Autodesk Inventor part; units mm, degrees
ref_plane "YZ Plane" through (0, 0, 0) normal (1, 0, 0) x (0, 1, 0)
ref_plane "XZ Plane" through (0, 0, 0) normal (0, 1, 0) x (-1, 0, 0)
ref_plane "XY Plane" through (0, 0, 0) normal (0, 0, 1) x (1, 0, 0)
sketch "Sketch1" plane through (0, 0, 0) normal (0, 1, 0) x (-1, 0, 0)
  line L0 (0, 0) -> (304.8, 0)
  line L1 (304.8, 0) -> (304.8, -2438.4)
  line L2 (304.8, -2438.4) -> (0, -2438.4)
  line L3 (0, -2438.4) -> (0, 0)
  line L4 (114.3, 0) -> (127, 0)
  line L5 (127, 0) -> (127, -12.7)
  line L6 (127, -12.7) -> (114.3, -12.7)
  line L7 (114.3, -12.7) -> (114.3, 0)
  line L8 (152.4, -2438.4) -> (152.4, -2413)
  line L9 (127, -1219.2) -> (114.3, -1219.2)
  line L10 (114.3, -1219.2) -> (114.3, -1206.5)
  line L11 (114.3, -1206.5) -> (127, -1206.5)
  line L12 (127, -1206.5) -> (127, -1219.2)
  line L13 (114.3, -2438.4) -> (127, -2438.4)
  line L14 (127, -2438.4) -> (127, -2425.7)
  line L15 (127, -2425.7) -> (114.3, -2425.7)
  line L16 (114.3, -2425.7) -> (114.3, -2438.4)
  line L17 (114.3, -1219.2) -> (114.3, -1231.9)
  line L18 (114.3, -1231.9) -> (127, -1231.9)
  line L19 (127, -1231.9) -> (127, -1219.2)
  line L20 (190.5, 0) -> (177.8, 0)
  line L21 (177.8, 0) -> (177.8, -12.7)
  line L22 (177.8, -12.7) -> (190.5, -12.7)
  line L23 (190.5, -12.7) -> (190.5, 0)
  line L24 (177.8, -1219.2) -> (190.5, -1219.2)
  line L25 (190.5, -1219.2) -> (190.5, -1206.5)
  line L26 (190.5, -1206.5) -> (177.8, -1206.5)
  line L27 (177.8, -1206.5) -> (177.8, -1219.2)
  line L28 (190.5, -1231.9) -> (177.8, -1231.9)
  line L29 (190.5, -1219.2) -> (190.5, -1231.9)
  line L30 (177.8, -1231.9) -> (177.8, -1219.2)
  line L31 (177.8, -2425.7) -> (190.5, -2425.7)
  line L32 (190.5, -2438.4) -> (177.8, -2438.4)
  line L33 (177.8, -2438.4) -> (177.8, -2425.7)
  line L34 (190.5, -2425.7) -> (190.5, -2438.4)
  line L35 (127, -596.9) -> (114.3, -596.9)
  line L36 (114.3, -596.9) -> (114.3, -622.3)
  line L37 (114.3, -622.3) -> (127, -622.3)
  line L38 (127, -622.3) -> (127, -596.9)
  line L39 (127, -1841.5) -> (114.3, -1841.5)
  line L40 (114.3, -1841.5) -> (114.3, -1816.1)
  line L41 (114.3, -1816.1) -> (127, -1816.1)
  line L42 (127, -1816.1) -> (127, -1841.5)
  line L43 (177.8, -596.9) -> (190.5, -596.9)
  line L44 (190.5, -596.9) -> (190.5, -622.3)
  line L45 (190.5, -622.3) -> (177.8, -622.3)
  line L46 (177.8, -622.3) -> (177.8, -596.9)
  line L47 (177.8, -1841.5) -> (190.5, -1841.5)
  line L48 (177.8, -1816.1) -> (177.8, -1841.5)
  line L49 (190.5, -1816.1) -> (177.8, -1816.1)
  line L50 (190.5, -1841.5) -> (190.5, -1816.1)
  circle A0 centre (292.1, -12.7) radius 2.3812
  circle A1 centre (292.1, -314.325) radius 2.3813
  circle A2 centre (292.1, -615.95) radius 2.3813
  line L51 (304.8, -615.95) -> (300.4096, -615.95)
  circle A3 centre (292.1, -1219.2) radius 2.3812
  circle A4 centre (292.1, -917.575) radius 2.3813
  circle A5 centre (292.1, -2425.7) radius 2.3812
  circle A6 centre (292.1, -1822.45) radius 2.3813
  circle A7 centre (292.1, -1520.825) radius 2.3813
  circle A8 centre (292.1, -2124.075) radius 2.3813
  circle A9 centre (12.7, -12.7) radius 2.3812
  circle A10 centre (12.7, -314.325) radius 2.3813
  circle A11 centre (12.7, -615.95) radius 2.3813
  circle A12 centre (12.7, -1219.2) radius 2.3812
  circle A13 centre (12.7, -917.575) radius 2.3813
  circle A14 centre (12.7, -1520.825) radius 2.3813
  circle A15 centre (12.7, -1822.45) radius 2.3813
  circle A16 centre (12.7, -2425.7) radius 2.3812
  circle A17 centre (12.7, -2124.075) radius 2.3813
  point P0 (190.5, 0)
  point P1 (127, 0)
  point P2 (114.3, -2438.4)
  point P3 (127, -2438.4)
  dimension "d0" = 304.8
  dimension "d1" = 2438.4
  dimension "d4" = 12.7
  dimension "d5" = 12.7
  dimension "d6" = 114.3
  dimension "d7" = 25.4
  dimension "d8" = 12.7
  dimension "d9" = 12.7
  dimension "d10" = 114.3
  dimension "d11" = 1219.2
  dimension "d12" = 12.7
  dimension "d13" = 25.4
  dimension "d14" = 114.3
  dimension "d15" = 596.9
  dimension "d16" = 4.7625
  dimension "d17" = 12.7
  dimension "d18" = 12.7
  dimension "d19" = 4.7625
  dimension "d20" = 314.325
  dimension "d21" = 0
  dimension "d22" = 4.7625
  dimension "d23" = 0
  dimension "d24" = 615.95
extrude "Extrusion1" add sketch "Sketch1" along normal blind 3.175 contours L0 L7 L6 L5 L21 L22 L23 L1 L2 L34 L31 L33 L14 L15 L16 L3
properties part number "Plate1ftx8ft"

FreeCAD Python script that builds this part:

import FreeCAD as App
import Part
import Sketcher
Q = App.Units.Quantity


def add_polygon(sketch, points):
    """Adds a closed chain of lines whose ends are joined by coincident constraints."""
    first, n = sketch.GeometryCount, len(points)
    for a, b in zip(points, points[1:] + points[:1]):
        sketch.addGeometry(Part.LineSegment(App.Vector(*a, 0), App.Vector(*b, 0)), False)
    for i in range(n):
        sketch.addConstraint(Sketcher.Constraint("Coincident", first + i, 2, first + (i + 1) % n, 1))

doc = App.newDocument("Part")
body = doc.addObject("PartDesign::Body", "Body")

# Sketch on XZ plane
sketch1 = body.newObject("Sketcher::SketchObject", "Sketch")
sketch1.AttachmentSupport = (doc.getObject("XZ_Plane"), [""])
sketch1.MapMode = "FlatFace"
add_polygon(sketch1, [(-114.3, 0), (0, 0), (0, -2438.4), (-114.3, -2438.4), (-114.3, -2425.7), (-127, -2425.7), (-127, -2438.4), (-177.8, -2438.4), (-177.8, -2425.7), (-190.5, -2425.7), (-190.5, -2438.4), (-304.8, -2438.4), (-304.8, 0), (-190.5, 0), (-190.5, -12.7), (-177.8, -12.7), (-177.8, 0), (-127, 0), (-127, -12.7), (-114.3, -12.7)])  # lines 0-19
sketch1.addGeometry(Part.Circle(App.Vector(-12.7, -2425.7, 0), App.Vector(0, 0, 1), 2.4), False)  # 20
sketch1.addGeometry(Part.Circle(App.Vector(-12.7, -2124.1, 0), App.Vector(0, 0, 1), 2.4), False)  # 21
sketch1.addGeometry(Part.Circle(App.Vector(-12.7, -1822.5, 0), App.Vector(0, 0, 1), 2.4), False)  # 22
sketch1.addGeometry(Part.Circle(App.Vector(-12.7, -1520.8, 0), App.Vector(0, 0, 1), 2.4), False)  # 23
add_polygon(sketch1, [(-127, -1816.1), (-127, -1841.5), (-114.3, -1841.5), (-114.3, -1816.1)])  # lines 24-27
sketch1.addGeometry(Part.Circle(App.Vector(-292.1, -2425.7, 0), App.Vector(0, 0, 1), 2.4), False)  # 28
sketch1.addGeometry(Part.Circle(App.Vector(-292.1, -2124.1, 0), App.Vector(0, 0, 1), 2.4), False)  # 29
add_polygon(sketch1, [(-190.5, -1841.5), (-177.8, -1841.5), (-177.8, -1816.1), (-190.5, -1816.1)])  # lines 30-33
sketch1.addGeometry(Part.Circle(App.Vector(-292.1, -1822.5, 0), App.Vector(0, 0, 1), 2.4), False)  # 34
sketch1.addGeometry(Part.Circle(App.Vector(-292.1, -1520.8, 0), App.Vector(0, 0, 1), 2.4), False)  # 35
sketch1.addGeometry(Part.Circle(App.Vector(-12.7, -1219.2, 0), App.Vector(0, 0, 1), 2.4), False)  # 36
sketch1.addGeometry(Part.Circle(App.Vector(-12.7, -917.6, 0), App.Vector(0, 0, 1), 2.4), False)  # 37
sketch1.addGeometry(Part.Circle(App.Vector(-12.7, -616, 0), App.Vector(0, 0, 1), 2.4), False)  # 38
add_polygon(sketch1, [(-127, -1206.5), (-127, -1231.9), (-114.3, -1231.9), (-114.3, -1206.5)])  # lines 39-42
sketch1.addGeometry(Part.Circle(App.Vector(-12.7, -314.3, 0), App.Vector(0, 0, 1), 2.4), False)  # 43
sketch1.addGeometry(Part.Circle(App.Vector(-12.7, -12.7, 0), App.Vector(0, 0, 1), 2.4), False)  # 44
add_polygon(sketch1, [(-114.3, -596.9), (-127, -596.9), (-127, -622.3), (-114.3, -622.3)])  # lines 45-48
add_polygon(sketch1, [(-177.8, -1231.9), (-177.8, -1206.5), (-190.5, -1206.5), (-190.5, -1231.9)])  # lines 49-52
sketch1.addGeometry(Part.Circle(App.Vector(-292.1, -1219.2, 0), App.Vector(0, 0, 1), 2.4), False)  # 53
sketch1.addGeometry(Part.Circle(App.Vector(-292.1, -917.6, 0), App.Vector(0, 0, 1), 2.4), False)  # 54
sketch1.addGeometry(Part.Circle(App.Vector(-292.1, -616, 0), App.Vector(0, 0, 1), 2.4), False)  # 55
add_polygon(sketch1, [(-177.8, -622.3), (-177.8, -596.9), (-190.5, -596.9), (-190.5, -622.3)])  # lines 56-59
sketch1.addGeometry(Part.Circle(App.Vector(-292.1, -314.3, 0), App.Vector(0, 0, 1), 2.4), False)  # 60
sketch1.addGeometry(Part.Circle(App.Vector(-292.1, -12.7, 0), App.Vector(0, 0, 1), 2.4), False)  # 61
sketch1.addConstraint([
    Sketcher.Constraint("Horizontal", 0),
    Sketcher.Constraint("Vertical", 1),
    Sketcher.Constraint("Horizontal", 2),
    Sketcher.Constraint("Vertical", 3),
    Sketcher.Constraint("Horizontal", 4),
    Sketcher.Constraint("Vertical", 5),
    Sketcher.Constraint("Horizontal", 6),
    Sketcher.Constraint("Vertical", 7),
    Sketcher.Constraint("Horizontal", 8),
    Sketcher.Constraint("Vertical", 9),
    Sketcher.Constraint("Horizontal", 10),
    Sketcher.Constraint("Vertical", 11),
    Sketcher.Constraint("Horizontal", 12),
    Sketcher.Constraint("Vertical", 13),
    Sketcher.Constraint("Horizontal", 14),
    Sketcher.Constraint("Vertical", 15),
    Sketcher.Constraint("Horizontal", 16),
    Sketcher.Constraint("Vertical", 17),
    Sketcher.Constraint("Horizontal", 18),
    Sketcher.Constraint("Vertical", 19),
    Sketcher.Constraint("Vertical", 24),
    Sketcher.Constraint("Horizontal", 25),
    Sketcher.Constraint("Vertical", 26),
    Sketcher.Constraint("Horizontal", 27),
    Sketcher.Constraint("Horizontal", 30),
    Sketcher.Constraint("Vertical", 31),
    Sketcher.Constraint("Horizontal", 32),
    Sketcher.Constraint("Vertical", 33),
    Sketcher.Constraint("Vertical", 39),
    Sketcher.Constraint("Horizontal", 40),
    Sketcher.Constraint("Vertical", 41),
    Sketcher.Constraint("Horizontal", 42),
    Sketcher.Constraint("Horizontal", 45),
    Sketcher.Constraint("Vertical", 46),
    Sketcher.Constraint("Horizontal", 47),
    Sketcher.Constraint("Vertical", 48),
    Sketcher.Constraint("Vertical", 49),
    Sketcher.Constraint("Horizontal", 50),
    Sketcher.Constraint("Vertical", 51),
    Sketcher.Constraint("Horizontal", 52),
    Sketcher.Constraint("Vertical", 56),
    Sketcher.Constraint("Horizontal", 57),
    Sketcher.Constraint("Vertical", 58),
    Sketcher.Constraint("Horizontal", 59),
    Sketcher.Constraint("Coincident", 0, 2, -1, 1),
    Sketcher.Constraint("Equal", 20, 21),
    Sketcher.Constraint("Equal", 21, 22),
    Sketcher.Constraint("Equal", 22, 23),
    Sketcher.Constraint("Equal", 23, 28),
    Sketcher.Constraint("Equal", 28, 29),
    Sketcher.Constraint("Equal", 29, 34),
    Sketcher.Constraint("Equal", 34, 35),
    Sketcher.Constraint("Equal", 35, 36),
    Sketcher.Constraint("Equal", 36, 37),
    Sketcher.Constraint("Equal", 37, 38),
    Sketcher.Constraint("Equal", 38, 43),
    Sketcher.Constraint("Equal", 43, 44),
    Sketcher.Constraint("Equal", 44, 53),
    Sketcher.Constraint("Equal", 53, 54),
    Sketcher.Constraint("Equal", 54, 55),
    Sketcher.Constraint("Equal", 55, 60),
    Sketcher.Constraint("Equal", 60, 61),
    Sketcher.Constraint("PointOnObject", 11, 2, -1),
    Sketcher.Constraint("PointOnObject", 15, 2, -1),
    Sketcher.Constraint("Horizontal", 20, 3, 28, 3),
    Sketcher.Constraint("Horizontal", 21, 3, 29, 3),
    Sketcher.Constraint("Horizontal", 22, 3, 34, 3),
    Sketcher.Constraint("Horizontal", 23, 3, 35, 3),
    Sketcher.Constraint("Horizontal", 36, 3, 53, 3),
    Sketcher.Constraint("Horizontal", 37, 3, 54, 3),
    Sketcher.Constraint("Horizontal", 38, 3, 55, 3),
    Sketcher.Constraint("Horizontal", 43, 3, 60, 3),
    Sketcher.Constraint("Horizontal", 44, 3, 61, 3),
    Sketcher.Constraint("Horizontal", 28, 3, 3, 2),
    Sketcher.Constraint("Horizontal", 2, 2, 5, 2),
    Sketcher.Constraint("Horizontal", 4, 2, 7, 2),
    Sketcher.Constraint("Horizontal", 6, 2, 9, 2),
    Sketcher.Constraint("Horizontal", 61, 3, 13, 2),
    Sketcher.Constraint("Horizontal", 14, 2, 17, 2),
    Sketcher.Constraint("Horizontal", 25, 2, 30, 2),
    Sketcher.Constraint("Horizontal", 27, 2, 31, 2),
    Sketcher.Constraint("Horizontal", 42, 2, 49, 2),
    Sketcher.Constraint("Horizontal", 40, 2, 51, 2),
    Sketcher.Constraint("Horizontal", 48, 2, 56, 2),
    Sketcher.Constraint("Horizontal", 47, 2, 58, 2),
    Sketcher.Constraint("Vertical", 20, 3, 21, 3),
    Sketcher.Constraint("Vertical", 21, 3, 22, 3),
    Sketcher.Constraint("Vertical", 22, 3, 23, 3),
    Sketcher.Constraint("Vertical", 28, 3, 29, 3),
    Sketcher.Constraint("Vertical", 29, 3, 34, 3),
    Sketcher.Constraint("Vertical", 34, 3, 35, 3),
    Sketcher.Constraint("Vertical", 23, 3, 36, 3),
    Sketcher.Constraint("Vertical", 36, 3, 37, 3),
    Sketcher.Constraint("Vertical", 37, 3, 38, 3),
    Sketcher.Constraint("Vertical", 38, 3, 43, 3),
    Sketcher.Constraint("Vertical", 43, 3, 44, 3),
    Sketcher.Constraint("Vertical", 35, 3, 53, 3),
    Sketcher.Constraint("Vertical", 53, 3, 54, 3),
    Sketcher.Constraint("Vertical", 54, 3, 55, 3),
    Sketcher.Constraint("Vertical", 55, 3, 60, 3),
    Sketcher.Constraint("Vertical", 60, 3, 61, 3),
    Sketcher.Constraint("Vertical", 9, 2, 12, 2),
    Sketcher.Constraint("Vertical", 7, 2, 14, 2),
    Sketcher.Constraint("Vertical", 5, 2, 16, 2),
    Sketcher.Constraint("Vertical", 3, 2, 18, 2),
    Sketcher.Constraint("Vertical", 17, 2, 24, 2),
    Sketcher.Constraint("Vertical", 19, 2, 25, 2),
    Sketcher.Constraint("Vertical", 15, 2, 30, 2),
    Sketcher.Constraint("Vertical", 13, 2, 32, 2),
    Sketcher.Constraint("Vertical", 27, 2, 39, 2),
    Sketcher.Constraint("Vertical", 26, 2, 40, 2),
    Sketcher.Constraint("Vertical", 42, 2, 45, 2),
    Sketcher.Constraint("Vertical", 41, 2, 47, 2),
    Sketcher.Constraint("Vertical", 31, 2, 49, 2),
    Sketcher.Constraint("Vertical", 33, 2, 50, 2),
    Sketcher.Constraint("Vertical", 52, 2, 56, 2),
    Sketcher.Constraint("Vertical", 51, 2, 57, 2),
    Sketcher.Constraint("Equal", 4, 8),
    Sketcher.Constraint("Equal", 2, 10),
    Sketcher.Constraint("Equal", 59, 3),
    Sketcher.Constraint("Equal", 9, 13),
    Sketcher.Constraint("Equal", 33, 39),
    Sketcher.Constraint("Equal", 41, 46),
    Sketcher.Constraint("DistanceY", 1, 2, 1, 1, Q("96 in")),
    Sketcher.Constraint("DistanceY", 24, 2, 24, 1, Q("1 in")),
    Sketcher.Constraint("Diameter", 20, Q("0.1875 in")),
    Sketcher.Constraint("DistanceX", 0, 1, 0, 2, Q("4.5 in")),
    Sketcher.Constraint("DistanceX", 4, 2, 4, 1, Q("0.5 in")),
    Sketcher.Constraint("DistanceY", 36, 3, -1, 1, Q("48 in")),
    Sketcher.Constraint("DistanceX", 10, 2, -1, 1, Q("12 in")),
    Sketcher.Constraint("DistanceX", 20, 3, -1, 1, Q("0.5 in")),
    Sketcher.Constraint("DistanceY", 45, 2, -1, 1, Q("23.5 in")),
    Sketcher.Constraint("DistanceY", 38, 3, -1, 1, Q("24.25 in")),
    Sketcher.Constraint("DistanceY", 43, 3, -1, 1, Q("12.375 in")),
    Sketcher.Constraint("DistanceX", 28, 3, -1, 1, Q("11.5 in")),
    Sketcher.Constraint("DistanceY", 24, 2, -1, 1, Q("72.5 in")),
    Sketcher.Constraint("DistanceY", 39, 2, -1, 1, Q("48.5 in")),
    Sketcher.Constraint("DistanceY", 22, 3, -1, 1, Q("71.75 in")),
    Sketcher.Constraint("DistanceY", 21, 3, -1, 1, Q("83.625 in")),
    Sketcher.Constraint("DistanceY", 23, 3, -1, 1, Q("59.875 in")),
    Sketcher.Constraint("DistanceY", 37, 3, -1, 1, Q("36.125 in")),
])
pad1 = body.newObject("PartDesign::Pad", "Pad")
pad1.Profile = sketch1
pad1.Length = Q("0.125 in")
pad1.Reversed = True

doc.recompute()
